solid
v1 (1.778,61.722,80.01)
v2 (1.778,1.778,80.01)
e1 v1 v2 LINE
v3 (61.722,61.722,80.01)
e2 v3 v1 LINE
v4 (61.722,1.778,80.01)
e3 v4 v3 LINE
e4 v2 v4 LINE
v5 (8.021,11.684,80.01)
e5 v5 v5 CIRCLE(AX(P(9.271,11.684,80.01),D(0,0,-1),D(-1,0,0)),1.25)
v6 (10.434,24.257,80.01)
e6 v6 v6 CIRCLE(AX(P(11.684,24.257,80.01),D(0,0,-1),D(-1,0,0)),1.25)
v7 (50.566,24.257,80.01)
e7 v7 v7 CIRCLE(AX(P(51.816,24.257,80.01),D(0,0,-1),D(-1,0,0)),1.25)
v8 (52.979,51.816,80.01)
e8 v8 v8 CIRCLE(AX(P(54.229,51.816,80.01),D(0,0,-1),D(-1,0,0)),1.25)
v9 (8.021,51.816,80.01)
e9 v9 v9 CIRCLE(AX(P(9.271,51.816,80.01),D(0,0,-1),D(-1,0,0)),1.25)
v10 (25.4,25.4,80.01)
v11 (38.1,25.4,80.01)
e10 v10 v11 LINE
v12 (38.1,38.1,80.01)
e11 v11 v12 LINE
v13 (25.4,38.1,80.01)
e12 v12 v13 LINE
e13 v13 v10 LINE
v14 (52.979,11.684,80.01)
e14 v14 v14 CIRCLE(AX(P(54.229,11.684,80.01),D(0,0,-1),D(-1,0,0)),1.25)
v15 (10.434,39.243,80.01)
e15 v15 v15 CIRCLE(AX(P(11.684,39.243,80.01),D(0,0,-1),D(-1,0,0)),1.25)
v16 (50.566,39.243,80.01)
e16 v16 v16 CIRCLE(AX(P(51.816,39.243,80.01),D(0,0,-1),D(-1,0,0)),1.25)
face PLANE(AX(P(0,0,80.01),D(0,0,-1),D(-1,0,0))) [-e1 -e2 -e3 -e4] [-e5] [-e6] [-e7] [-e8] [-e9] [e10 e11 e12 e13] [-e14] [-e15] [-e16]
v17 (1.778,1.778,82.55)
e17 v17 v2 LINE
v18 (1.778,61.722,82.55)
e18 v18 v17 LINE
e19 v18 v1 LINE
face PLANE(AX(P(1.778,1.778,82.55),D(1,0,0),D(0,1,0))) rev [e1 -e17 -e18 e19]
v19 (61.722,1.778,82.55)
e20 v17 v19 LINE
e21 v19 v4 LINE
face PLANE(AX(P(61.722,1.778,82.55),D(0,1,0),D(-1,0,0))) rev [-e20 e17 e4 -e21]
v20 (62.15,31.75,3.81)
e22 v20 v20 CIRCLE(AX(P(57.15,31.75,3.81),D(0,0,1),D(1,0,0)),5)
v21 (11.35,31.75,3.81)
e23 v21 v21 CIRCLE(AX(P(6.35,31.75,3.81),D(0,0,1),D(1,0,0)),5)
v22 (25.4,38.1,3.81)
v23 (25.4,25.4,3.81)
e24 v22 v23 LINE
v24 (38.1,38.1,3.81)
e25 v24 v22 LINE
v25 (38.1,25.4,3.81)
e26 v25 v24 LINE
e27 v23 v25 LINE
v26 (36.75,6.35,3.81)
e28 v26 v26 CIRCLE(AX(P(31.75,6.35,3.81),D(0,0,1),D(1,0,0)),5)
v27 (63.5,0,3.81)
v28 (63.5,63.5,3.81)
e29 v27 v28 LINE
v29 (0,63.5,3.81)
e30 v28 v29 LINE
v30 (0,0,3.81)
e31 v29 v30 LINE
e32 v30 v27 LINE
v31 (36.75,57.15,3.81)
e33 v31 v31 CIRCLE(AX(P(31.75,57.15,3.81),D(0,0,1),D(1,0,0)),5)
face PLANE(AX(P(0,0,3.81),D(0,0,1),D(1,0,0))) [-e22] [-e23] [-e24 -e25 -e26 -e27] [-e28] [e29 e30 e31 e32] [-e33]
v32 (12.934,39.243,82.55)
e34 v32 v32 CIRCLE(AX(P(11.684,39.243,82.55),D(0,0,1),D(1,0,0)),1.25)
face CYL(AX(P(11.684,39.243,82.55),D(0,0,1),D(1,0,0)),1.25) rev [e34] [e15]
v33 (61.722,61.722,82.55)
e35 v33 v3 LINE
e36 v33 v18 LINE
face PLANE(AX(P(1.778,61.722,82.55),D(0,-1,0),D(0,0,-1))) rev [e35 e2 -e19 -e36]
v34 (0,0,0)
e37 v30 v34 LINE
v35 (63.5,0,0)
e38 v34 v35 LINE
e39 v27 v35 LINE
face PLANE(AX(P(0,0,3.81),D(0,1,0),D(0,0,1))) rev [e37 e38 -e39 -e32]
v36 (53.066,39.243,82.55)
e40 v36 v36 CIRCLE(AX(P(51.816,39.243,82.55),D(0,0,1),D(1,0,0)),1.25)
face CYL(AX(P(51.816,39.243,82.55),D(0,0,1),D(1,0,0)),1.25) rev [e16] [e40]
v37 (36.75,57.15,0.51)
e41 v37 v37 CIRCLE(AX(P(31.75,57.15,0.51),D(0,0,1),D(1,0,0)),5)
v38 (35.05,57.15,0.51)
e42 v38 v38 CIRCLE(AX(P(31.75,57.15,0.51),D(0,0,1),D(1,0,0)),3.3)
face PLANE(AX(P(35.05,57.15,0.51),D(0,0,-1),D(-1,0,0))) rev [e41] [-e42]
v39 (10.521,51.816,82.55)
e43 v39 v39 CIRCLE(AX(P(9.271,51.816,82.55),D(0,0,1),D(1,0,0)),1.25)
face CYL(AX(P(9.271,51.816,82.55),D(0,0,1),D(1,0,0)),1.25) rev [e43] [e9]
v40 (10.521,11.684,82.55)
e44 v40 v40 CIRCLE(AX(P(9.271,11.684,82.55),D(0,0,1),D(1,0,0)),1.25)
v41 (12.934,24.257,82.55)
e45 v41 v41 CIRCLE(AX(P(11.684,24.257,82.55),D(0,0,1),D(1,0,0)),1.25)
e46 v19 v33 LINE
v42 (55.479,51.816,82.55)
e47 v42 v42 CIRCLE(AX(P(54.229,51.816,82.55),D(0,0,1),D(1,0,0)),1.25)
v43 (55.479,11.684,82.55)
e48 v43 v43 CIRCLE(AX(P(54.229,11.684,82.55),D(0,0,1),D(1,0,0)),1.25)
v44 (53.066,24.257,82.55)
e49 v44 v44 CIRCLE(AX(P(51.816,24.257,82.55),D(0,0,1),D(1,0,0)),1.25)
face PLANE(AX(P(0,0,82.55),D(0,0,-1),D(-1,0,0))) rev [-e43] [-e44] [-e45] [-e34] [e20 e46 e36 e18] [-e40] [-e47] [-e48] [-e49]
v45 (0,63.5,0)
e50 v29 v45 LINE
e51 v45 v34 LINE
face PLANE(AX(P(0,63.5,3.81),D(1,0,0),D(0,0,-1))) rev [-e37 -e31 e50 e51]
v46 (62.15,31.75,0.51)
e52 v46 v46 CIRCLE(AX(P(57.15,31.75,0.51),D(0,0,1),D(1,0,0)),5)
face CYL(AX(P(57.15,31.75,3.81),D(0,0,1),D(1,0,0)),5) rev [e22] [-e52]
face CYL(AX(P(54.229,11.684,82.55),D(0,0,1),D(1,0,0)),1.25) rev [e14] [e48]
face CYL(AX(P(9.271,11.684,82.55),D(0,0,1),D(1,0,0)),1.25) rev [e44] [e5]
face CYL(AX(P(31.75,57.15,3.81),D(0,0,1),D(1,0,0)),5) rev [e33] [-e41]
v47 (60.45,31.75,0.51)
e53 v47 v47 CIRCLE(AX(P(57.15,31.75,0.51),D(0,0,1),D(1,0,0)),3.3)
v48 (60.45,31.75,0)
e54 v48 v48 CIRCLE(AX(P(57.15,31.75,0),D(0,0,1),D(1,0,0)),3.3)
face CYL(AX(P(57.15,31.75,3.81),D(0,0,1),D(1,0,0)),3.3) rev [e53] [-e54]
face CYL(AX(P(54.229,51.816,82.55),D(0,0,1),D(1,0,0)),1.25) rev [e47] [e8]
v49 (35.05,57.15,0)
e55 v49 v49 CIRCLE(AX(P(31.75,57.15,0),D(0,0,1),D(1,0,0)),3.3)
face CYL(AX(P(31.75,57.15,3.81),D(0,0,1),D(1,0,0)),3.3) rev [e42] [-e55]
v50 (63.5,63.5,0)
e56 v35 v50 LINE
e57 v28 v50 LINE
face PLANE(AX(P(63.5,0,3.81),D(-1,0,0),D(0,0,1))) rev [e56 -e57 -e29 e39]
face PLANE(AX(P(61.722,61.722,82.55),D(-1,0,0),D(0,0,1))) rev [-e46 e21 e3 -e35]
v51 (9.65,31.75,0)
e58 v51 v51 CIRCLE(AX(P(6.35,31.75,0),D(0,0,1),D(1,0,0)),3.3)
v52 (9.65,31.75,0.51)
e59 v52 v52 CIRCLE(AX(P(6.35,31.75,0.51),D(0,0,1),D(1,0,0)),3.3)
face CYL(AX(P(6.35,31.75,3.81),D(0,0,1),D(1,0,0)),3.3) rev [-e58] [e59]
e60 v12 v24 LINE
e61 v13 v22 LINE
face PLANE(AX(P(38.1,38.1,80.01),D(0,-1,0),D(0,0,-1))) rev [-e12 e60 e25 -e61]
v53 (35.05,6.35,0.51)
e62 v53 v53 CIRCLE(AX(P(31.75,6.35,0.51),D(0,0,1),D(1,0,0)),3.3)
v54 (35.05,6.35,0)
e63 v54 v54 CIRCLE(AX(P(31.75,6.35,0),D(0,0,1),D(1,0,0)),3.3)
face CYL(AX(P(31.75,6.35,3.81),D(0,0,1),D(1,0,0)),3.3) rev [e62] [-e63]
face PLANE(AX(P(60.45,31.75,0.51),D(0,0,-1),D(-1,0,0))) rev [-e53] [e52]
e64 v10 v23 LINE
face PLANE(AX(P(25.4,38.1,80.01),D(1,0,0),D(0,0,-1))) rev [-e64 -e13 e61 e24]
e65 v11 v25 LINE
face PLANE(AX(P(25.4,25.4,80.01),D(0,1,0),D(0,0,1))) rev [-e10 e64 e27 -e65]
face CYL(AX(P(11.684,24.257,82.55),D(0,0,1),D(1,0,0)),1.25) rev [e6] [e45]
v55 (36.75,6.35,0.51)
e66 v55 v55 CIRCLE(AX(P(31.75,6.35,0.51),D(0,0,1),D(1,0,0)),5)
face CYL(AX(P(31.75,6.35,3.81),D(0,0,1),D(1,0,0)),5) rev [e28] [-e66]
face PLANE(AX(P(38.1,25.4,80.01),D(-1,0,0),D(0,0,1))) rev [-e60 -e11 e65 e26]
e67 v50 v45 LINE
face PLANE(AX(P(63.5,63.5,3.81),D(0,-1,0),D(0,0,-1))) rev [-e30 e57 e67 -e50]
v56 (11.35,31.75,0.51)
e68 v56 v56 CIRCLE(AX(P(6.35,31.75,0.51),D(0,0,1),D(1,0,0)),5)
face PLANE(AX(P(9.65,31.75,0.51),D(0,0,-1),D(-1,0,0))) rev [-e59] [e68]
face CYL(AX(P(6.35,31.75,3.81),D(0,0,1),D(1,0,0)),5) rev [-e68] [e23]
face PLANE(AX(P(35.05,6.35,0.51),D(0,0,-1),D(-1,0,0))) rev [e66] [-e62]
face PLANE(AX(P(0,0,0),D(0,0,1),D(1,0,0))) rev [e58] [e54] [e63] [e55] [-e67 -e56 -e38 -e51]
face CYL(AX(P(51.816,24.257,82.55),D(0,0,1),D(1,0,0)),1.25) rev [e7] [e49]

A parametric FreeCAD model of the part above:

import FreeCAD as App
import Part
import Sketcher
from FreeCAD import Vector
Q = App.Units.Quantity


def add_polygon(sketch, points):
    """Adds a closed chain of lines whose ends are joined by coincident constraints."""
    first, n = sketch.GeometryCount, len(points)
    for a, b in zip(points, points[1:] + points[:1]):
        sketch.addGeometry(Part.LineSegment(App.Vector(*a, 0), App.Vector(*b, 0)), False)
    for i in range(n):
        sketch.addConstraint(Sketcher.Constraint("Coincident", first + i, 2, first + (i + 1) % n, 1))

doc = App.newDocument("Part")
body = doc.addObject("PartDesign::Body", "Body")

# Sketch on XY plane
sketch1 = body.newObject("Sketcher::SketchObject", "Sketch")
sketch1.AttachmentSupport = (doc.getObject("XY_Plane"), [""])
sketch1.MapMode = "FlatFace"
add_polygon(sketch1, [(0, 64), (0, 0), (64, 0), (64, 64)])  # lines 0-3
sketch1.addConstraint([
    Sketcher.Constraint("Vertical", 0),
    Sketcher.Constraint("Horizontal", 1),
    Sketcher.Constraint("Vertical", 2),
    Sketcher.Constraint("Horizontal", 3),
    Sketcher.Constraint("Coincident", 0, 2, -1, 1),
    Sketcher.Constraint("Equal", 3, 0),
    Sketcher.Constraint("DistanceX", 1, 1, 1, 2, Q("2.5 in")),
])
pad1 = body.newObject("PartDesign::Pad", "Pad")
pad1.Profile = sketch1
pad1.Length = Q("0.15 in")

# Sketch on XY plane
sketch2 = body.newObject("Sketcher::SketchObject", "Sketch001")
sketch2.AttachmentSupport = (doc.getObject("XY_Plane"), [""])
sketch2.MapMode = "FlatFace"
sketch2.AttachmentOffset = App.Placement(Vector(0, 0, 0.15 * 25.4), App.Rotation())
add_polygon(sketch2, [(25, 38), (25, 25), (38, 25), (38, 38)])  # lines 0-3
sketch2.addConstraint([
    Sketcher.Constraint("Vertical", 0),
    Sketcher.Constraint("Horizontal", 1),
    Sketcher.Constraint("Vertical", 2),
    Sketcher.Constraint("Horizontal", 3),
    Sketcher.Constraint("Equal", 3, 0),
    Sketcher.Constraint("DistanceX", 1, 1, 1, 2, Q("0.5 in")),
    Sketcher.Constraint("DistanceX", -1, 1, 0, 2, Q("1 in")),
    Sketcher.Constraint("DistanceY", -1, 1, 0, 2, Q("1 in")),
])
pad2 = body.newObject("PartDesign::Pad", "Pad001")
pad2.Profile = sketch2
pad2.Length = Q("3 in")

# Sketch on XY plane
sketch3 = body.newObject("Sketcher::SketchObject", "Sketch002")
sketch3.AttachmentSupport = (doc.getObject("XY_Plane"), [""])
sketch3.MapMode = "FlatFace"
sketch3.AttachmentOffset = App.Placement(Vector(0, 0, 3.15 * 25.4), App.Rotation())
add_polygon(sketch3, [(2, 62), (2, 2), (62, 2), (62, 62)])  # lines 0-3
sketch3.addConstraint([
    Sketcher.Constraint("Vertical", 0),
    Sketcher.Constraint("Horizontal", 1),
    Sketcher.Constraint("Vertical", 2),
    Sketcher.Constraint("Horizontal", 3),
    Sketcher.Constraint("Equal", 3, 0),
    Sketcher.Constraint("DistanceX", 1, 1, 1, 2, Q("2.36 in")),
    Sketcher.Constraint("DistanceX", -1, 1, 0, 2, Q("0.07 in")),
    Sketcher.Constraint("DistanceY", -1, 1, 0, 2, Q("0.07 in")),
])
pad3 = body.newObject("PartDesign::Pad", "Pad002")
pad3.Profile = sketch3
pad3.Length = Q("0.1 in")

# Sketch on XY plane
sketch4 = body.newObject("Sketcher::SketchObject", "Sketch003")
sketch4.AttachmentSupport = (doc.getObject("XY_Plane"), [""])
sketch4.MapMode = "FlatFace"
sketch4.AttachmentOffset = App.Placement(Vector(0, 0, 0.15 * 25.4), App.Rotation())
sketch4.addGeometry([
    Part.Circle(Vector(57.1, 31.8, 0), Vector(0, 0, 1), 3.3),
    Part.Circle(Vector(31.8, 6.3, 0), Vector(0, 0, 1), 3.3),
    Part.Circle(Vector(31.8, 57.1, 0), Vector(0, 0, 1), 3.3),
    Part.Circle(Vector(6.3, 31.8, 0), Vector(0, 0, 1), 3.3),
], False)
sketch4.addConstraint([
    Sketcher.Constraint("Equal", 0, 1),
    Sketcher.Constraint("Equal", 1, 2),
    Sketcher.Constraint("Equal", 2, 3),
    Sketcher.Constraint("Horizontal", 0, 3, 3, 3),
    Sketcher.Constraint("Vertical", 1, 3, 2, 3),
    Sketcher.Constraint("DistanceX", 1, 3, 0, 3, Q("1 in")),
    Sketcher.Constraint("DistanceY", 1, 3, 0, 3, Q("1 in")),
    Sketcher.Constraint("DistanceY", 0, 3, 2, 3, Q("1 in")),
    Sketcher.Constraint("DistanceX", 3, 3, 1, 3, Q("1 in")),
    Sketcher.Constraint("Diameter", 0, Q("6.6 mm")),
    Sketcher.Constraint("DistanceX", -1, 1, 0, 3, Q("2.25 in")),
    Sketcher.Constraint("DistanceY", -1, 1, 0, 3, Q("1.25 in")),
])
doc.recompute()
hole = body.newObject("PartDesign::Hole", "Hole")
hole.Profile = sketch4
hole.ThreadType = "None"
hole.Diameter = 6.6
hole.DepthType = "Dimension"
hole.Depth = Q("0.3 in")
hole.DrillPoint = "Angled"
hole.DrillPointAngle = 118
hole.HoleCutType = "Counterbore"
hole.HoleCutDiameter = 10
hole.HoleCutDepth = 3.3

# Sketch on XY plane
sketch5 = body.newObject("Sketcher::SketchObject", "Sketch004")
sketch5.AttachmentSupport = (doc.getObject("XY_Plane"), [""])
sketch5.MapMode = "FlatFace"
sketch5.AttachmentOffset = App.Placement(Vector(0, 0, 3.25 * 25.4), App.Rotation())
sketch5.addGeometry([
    Part.Circle(Vector(9.3, 51.8, 0), Vector(0, 0, 1), 1.2),  # 0
    Part.Circle(Vector(9.3, 11.7, 0), Vector(0, 0, 1), 1.2),  # 1
    Part.Circle(Vector(54.2, 11.7, 0), Vector(0, 0, 1), 1.2),  # 2
    Part.Circle(Vector(54.2, 51.8, 0), Vector(0, 0, 1), 1.2),  # 3
    Part.Circle(Vector(11.7, 39.2, 0), Vector(0, 0, 1), 1.2),  # 4
    Part.Circle(Vector(11.7, 24.3, 0), Vector(0, 0, 1), 1.2),  # 5
    Part.Circle(Vector(51.8, 39.2, 0), Vector(0, 0, 1), 1.2),  # 6
    Part.Circle(Vector(51.8, 24.3, 0), Vector(0, 0, 1), 1.2),  # 7
], False)
sketch5.addConstraint([
    Sketcher.Constraint("Equal", 0, 1),
    Sketcher.Constraint("Equal", 1, 2),
    Sketcher.Constraint("Equal", 2, 3),
    Sketcher.Constraint("Equal", 3, 4),
    Sketcher.Constraint("Equal", 4, 5),
    Sketcher.Constraint("Equal", 5, 6),
    Sketcher.Constraint("Equal", 6, 7),
    Sketcher.Constraint("Horizontal", 1, 3, 2, 3),
    Sketcher.Constraint("Horizontal", 0, 3, 3, 3),
    Sketcher.Constraint("Horizontal", 4, 3, 6, 3),
    Sketcher.Constraint("Horizontal", 5, 3, 7, 3),
    Sketcher.Constraint("Vertical", 0, 3, 1, 3),
    Sketcher.Constraint("Vertical", 2, 3, 3, 3),
    Sketcher.Constraint("Vertical", 4, 3, 5, 3),
    Sketcher.Constraint("Vertical", 6, 3, 7, 3),
    Sketcher.Constraint("Diameter", 0, Q("2.5 mm")),
    Sketcher.Constraint("DistanceY", -1, 1, 0, 3, Q("2.04 in")),
    Sketcher.Constraint("DistanceY", -1, 1, 1, 3, Q("0.46 in")),
    Sketcher.Constraint("DistanceX", -1, 1, 4, 3, Q("0.46 in")),
    Sketcher.Constraint("DistanceX", -1, 1, 6, 3, Q("2.04 in")),
    Sketcher.Constraint("DistanceX", 1, 3, 2, 3, Q("1.77 in")),
    Sketcher.Constraint("DistanceY", 5, 3, 4, 3, Q("0.59 in")),
    Sketcher.Constraint("DistanceX", -1, 1, 0, 3, Q("0.365 in")),
    Sketcher.Constraint("DistanceY", -1, 1, 4, 3, Q("1.545 in")),
])
doc.recompute()
hole2 = body.newObject("PartDesign::Hole", "Hole001")
hole2.Profile = sketch5
hole2.ThreadType = "None"
hole2.Diameter = 2.5
hole2.DepthType = "Dimension"
hole2.Depth = Q("0.3 in")
hole2.DrillPoint = "Angled"
hole2.DrillPointAngle = 118

doc.recompute()
